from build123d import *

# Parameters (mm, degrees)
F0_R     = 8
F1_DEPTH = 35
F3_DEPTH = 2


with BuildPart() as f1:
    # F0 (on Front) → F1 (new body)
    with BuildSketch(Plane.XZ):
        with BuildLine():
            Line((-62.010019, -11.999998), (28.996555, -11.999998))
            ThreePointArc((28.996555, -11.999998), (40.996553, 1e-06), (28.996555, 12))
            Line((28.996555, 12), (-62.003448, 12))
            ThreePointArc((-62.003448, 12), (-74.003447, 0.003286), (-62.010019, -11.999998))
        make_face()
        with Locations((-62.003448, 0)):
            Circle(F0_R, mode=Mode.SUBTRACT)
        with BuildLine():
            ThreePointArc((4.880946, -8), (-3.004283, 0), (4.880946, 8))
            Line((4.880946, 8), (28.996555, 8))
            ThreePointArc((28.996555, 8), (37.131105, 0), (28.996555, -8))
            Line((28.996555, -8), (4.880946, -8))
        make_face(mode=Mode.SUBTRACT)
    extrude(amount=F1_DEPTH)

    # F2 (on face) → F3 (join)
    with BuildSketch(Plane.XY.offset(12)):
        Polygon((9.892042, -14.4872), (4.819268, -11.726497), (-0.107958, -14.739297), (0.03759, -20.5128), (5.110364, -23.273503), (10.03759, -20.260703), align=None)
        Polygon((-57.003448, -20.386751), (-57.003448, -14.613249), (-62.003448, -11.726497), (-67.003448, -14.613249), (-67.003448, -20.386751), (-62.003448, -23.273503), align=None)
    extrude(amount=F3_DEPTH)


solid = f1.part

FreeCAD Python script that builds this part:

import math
import FreeCAD as App
import Part
import Sketcher

V = App.Vector
Q = App.Units.Quantity

doc = App.newDocument("Part")
body = doc.addObject("PartDesign::Body", "Body")

# Sketch on XZ plane
sketch1 = body.newObject("Sketcher::SketchObject", "Sketch")
sketch1.AttachmentSupport = (doc.getObject("XZ_Plane"), [""])
sketch1.MapMode = "FlatFace"
sketch1.addGeometry([
    Part.LineSegment(V(-62, -12, 0), V(29, -12, 0)),  # 0
    Part.ArcOfCircle(Part.Circle(V(29, 0, 0), V(0, 0, 1), 12), math.radians(-90), math.radians(90)),  # 1
    Part.LineSegment(V(29, 12, 0), V(-62, 12, 0)),  # 2
    Part.ArcOfCircle(Part.Circle(V(-62, 0, 0), V(0, 0, 1), 12), math.radians(90), math.radians(270)),  # 3
    Part.Circle(V(-62, 0, 0), V(0, 0, 1), 8),  # 4
    Part.LineSegment(V(29, -8, 0), V(5, -8, 0)),  # 5
    Part.ArcOfCircle(Part.Circle(V(5, 0, 0), V(0, 0, 1), 8), math.radians(91), math.radians(269)),  # 6
    Part.LineSegment(V(5, 8, 0), V(29, 8, 0)),  # 7
    Part.ArcOfCircle(Part.Circle(V(29, 0, 0), V(0, 0, 1), 8), math.radians(-91), math.radians(91)),  # 8
], False)
sketch1.addConstraint([
    Sketcher.Constraint("Tangent", 0, 2, 1, 1),
    Sketcher.Constraint("Tangent", 1, 2, 2, 1),
    Sketcher.Constraint("Tangent", 2, 2, 3, 1),
    Sketcher.Constraint("Coincident", 3, 2, 0, 1),
    Sketcher.Constraint("Coincident", 5, 2, 6, 2),
    Sketcher.Constraint("Coincident", 6, 1, 7, 1),
    Sketcher.Constraint("Coincident", 7, 2, 8, 2),
    Sketcher.Constraint("Coincident", 8, 1, 5, 1),
    Sketcher.Constraint("Horizontal", 0),
    Sketcher.Constraint("Horizontal", 2),
    Sketcher.Constraint("Horizontal", 5),
    Sketcher.Constraint("Horizontal", 7),
    Sketcher.Constraint("Coincident", 4, 3, 3, 3),
    Sketcher.Constraint("Symmetric", 5, 2, 6, 1, -1),
    Sketcher.Constraint("PointOnObject", 1, 3, -1),
    Sketcher.Constraint("PointOnObject", 8, 3, -1),
    Sketcher.Constraint("Vertical", 1, 2, 7, 2),
    Sketcher.Constraint("Diameter", 4, Q("16 mm")),
    Sketcher.Constraint("Radius", 1, Q("11.999999 mm")),
    Sketcher.Constraint("DistanceY", 5, 2, -1, 1, Q("8 mm")),
    Sketcher.Constraint("DistanceX", 3, 3, 1, 3, Q("91.000002 mm")),
    Sketcher.Constraint("DistanceX", 6, 3, 1, 3, Q("24.000002 mm")),
    Sketcher.Constraint("Radius", 6, Q("8.000835 mm")),
    Sketcher.Constraint("Radius", 8, Q("8.001113 mm")),
    Sketcher.Constraint("DistanceX", 0, 1, 0, 2, Q("91.006574 mm")),
    Sketcher.Constraint("DistanceX", 3, 2, -1, 1, Q("62.010019 mm")),
])
pad1 = body.newObject("PartDesign::Pad", "Pad")
pad1.Profile = sketch1
pad1.Length = 35

# Sketch on XY plane
sketch2 = body.newObject("Sketcher::SketchObject", "Sketch001")
sketch2.AttachmentSupport = (doc.getObject("XY_Plane"), [""])
sketch2.MapMode = "FlatFace"
sketch2.AttachmentOffset = App.Placement(V(0, 0, 12), App.Rotation())
sketch2.addGeometry([
    Part.LineSegment(V(10, -14, 0), V(5, -12, 0)),  # 0
    Part.LineSegment(V(5, -12, 0), V(0, -15, 0)),  # 1
    Part.LineSegment(V(0, -15, 0), V(0, -21, 0)),  # 2
    Part.LineSegment(V(0, -21, 0), V(5, -23, 0)),  # 3
    Part.LineSegment(V(5, -23, 0), V(10, -20, 0)),  # 4
    Part.LineSegment(V(10, -20, 0), V(10, -14, 0)),  # 5
    Part.LineSegment(V(-57, -20, 0), V(-57, -15, 0)),  # 6
    Part.LineSegment(V(-57, -15, 0), V(-62, -12, 0)),  # 7
    Part.LineSegment(V(-62, -12, 0), V(-67, -15, 0)),  # 8
    Part.LineSegment(V(-67, -15, 0), V(-67, -20, 0)),  # 9
    Part.LineSegment(V(-67, -20, 0), V(-62, -23, 0)),  # 10
    Part.LineSegment(V(-62, -23, 0), V(-57, -20, 0)),  # 11
], False)
sketch2.addConstraint([
    Sketcher.Constraint("Coincident", 0, 2, 1, 1),
    Sketcher.Constraint("Coincident", 1, 2, 2, 1),
    Sketcher.Constraint("Coincident", 2, 2, 3, 1),
    Sketcher.Constraint("Coincident", 3, 2, 4, 1),
    Sketcher.Constraint("Coincident", 4, 2, 5, 1),
    Sketcher.Constraint("Coincident", 5, 2, 0, 1),
    Sketcher.Constraint("Coincident", 6, 2, 7, 1),
    Sketcher.Constraint("Coincident", 7, 2, 8, 1),
    Sketcher.Constraint("Coincident", 8, 2, 9, 1),
    Sketcher.Constraint("Coincident", 9, 2, 10, 1),
    Sketcher.Constraint("Coincident", 10, 2, 11, 1),
    Sketcher.Constraint("Coincident", 11, 2, 6, 1),
    Sketcher.Constraint("Vertical", 6),
    Sketcher.Constraint("Vertical", 9),
    Sketcher.Constraint("Parallel", 0, 3),
    Sketcher.Constraint("Parallel", 1, 4),
    Sketcher.Constraint("Parallel", 2, 5),
    Sketcher.Constraint("Parallel", 7, 10),
    Sketcher.Constraint("Parallel", 8, 11),
    Sketcher.Constraint("Horizontal", 0, 2, 7, 2),
    Sketcher.Constraint("Horizontal", 6, 2, 8, 2),
    Sketcher.Constraint("Horizontal", 3, 2, 10, 2),
    Sketcher.Constraint("Horizontal", 9, 2, 11, 2),
    Sketcher.Constraint("Vertical", 7, 2, 10, 2),
    Sketcher.Constraint("Equal", 0, 1),
    Sketcher.Constraint("Equal", 1, 2),
    Sketcher.Constraint("Equal", 2, 3),
    Sketcher.Constraint("Angle", 7, Q("149.999994 deg")),
    Sketcher.Constraint("DistanceX", 2, 2, 4, 2, Q("10 mm")),
    Sketcher.Constraint("DistanceX", 7, 2, 6, 2, Q("5 mm")),
    Sketcher.Constraint("DistanceY", 2, 2, -1, 1, Q("20.5128 mm")),
    Sketcher.Constraint("DistanceY", 5, 2, -1, 1, Q("14.4872 mm")),
    Sketcher.Constraint("DistanceY", 1, 2, 0, 2, Q("3.0128 mm")),
    Sketcher.Constraint("DistanceY", 6, 1, 6, 2, Q("5.773502 mm")),
    Sketcher.Constraint("DistanceX", -1, 1, 2, 2, Q("0.03759 mm")),
    Sketcher.Constraint("DistanceX", 8, 2, -1, 1, Q("67.003448 mm")),
])
pad2 = body.newObject("PartDesign::Pad", "Pad001")
pad2.Profile = sketch2
pad2.Length = 2

doc.recompute()
